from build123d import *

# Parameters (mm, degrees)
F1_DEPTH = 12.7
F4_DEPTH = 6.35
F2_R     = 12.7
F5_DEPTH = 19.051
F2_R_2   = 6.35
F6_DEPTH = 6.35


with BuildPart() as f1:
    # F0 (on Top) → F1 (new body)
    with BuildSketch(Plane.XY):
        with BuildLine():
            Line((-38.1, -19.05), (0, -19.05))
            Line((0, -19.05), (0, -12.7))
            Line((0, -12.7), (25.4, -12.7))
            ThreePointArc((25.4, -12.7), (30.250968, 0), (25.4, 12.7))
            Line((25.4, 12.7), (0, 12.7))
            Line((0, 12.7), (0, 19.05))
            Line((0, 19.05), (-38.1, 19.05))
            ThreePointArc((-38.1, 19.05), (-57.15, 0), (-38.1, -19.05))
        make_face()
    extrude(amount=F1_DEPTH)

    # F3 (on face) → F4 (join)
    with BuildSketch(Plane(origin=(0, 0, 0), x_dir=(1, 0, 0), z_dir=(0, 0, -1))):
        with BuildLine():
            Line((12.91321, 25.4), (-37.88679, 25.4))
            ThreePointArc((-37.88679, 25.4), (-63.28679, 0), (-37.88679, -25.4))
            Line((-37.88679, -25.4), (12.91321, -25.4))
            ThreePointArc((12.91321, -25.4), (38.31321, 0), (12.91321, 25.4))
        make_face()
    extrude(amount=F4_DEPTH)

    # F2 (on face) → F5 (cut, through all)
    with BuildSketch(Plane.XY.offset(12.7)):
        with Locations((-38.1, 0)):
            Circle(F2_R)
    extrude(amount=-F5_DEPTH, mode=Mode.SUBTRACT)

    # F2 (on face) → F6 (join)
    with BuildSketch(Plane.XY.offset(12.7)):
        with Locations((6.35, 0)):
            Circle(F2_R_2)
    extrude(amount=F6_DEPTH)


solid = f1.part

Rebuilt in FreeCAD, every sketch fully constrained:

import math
import FreeCAD as App
import Part
import Sketcher
from FreeCAD import Vector
Q = App.Units.Quantity

doc = App.newDocument("Part")
body = doc.addObject("PartDesign::Body", "Body")

# Sketch on XY plane
sketch1 = body.newObject("Sketcher::SketchObject", "Sketch")
sketch1.AttachmentSupport = (doc.getObject("XY_Plane"), [""])
sketch1.MapMode = "FlatFace"
sketch1.addGeometry(Part.LineSegment(Vector(-38, -19, 0), Vector(0, -19, 0)), False)
sketch1.addGeometry(Part.LineSegment(Vector(0, -19, 0), Vector(0, -13, 0)), False)
sketch1.addGeometry(Part.LineSegment(Vector(0, -13, 0), Vector(25, -13, 0)), False)
sketch1.addGeometry(Part.ArcOfCircle(Part.Circle(Vector(11, 0, 0), Vector(0, 0, 1), 19), math.radians(-42), math.radians(42)), False)
sketch1.addGeometry(Part.LineSegment(Vector(25, 13, 0), Vector(0, 13, 0)), False)
sketch1.addGeometry(Part.LineSegment(Vector(0, 13, 0), Vector(0, 19, 0)), False)
sketch1.addGeometry(Part.LineSegment(Vector(0, 19, 0), Vector(-38, 19, 0)), False)
sketch1.addGeometry(Part.ArcOfCircle(Part.Circle(Vector(-38, 0, 0), Vector(0, 0, 1), 19), math.radians(90), math.radians(270)), False)
sketch1.addConstraint(Sketcher.Constraint("Coincident", 0, 2, 1, 1))
sketch1.addConstraint(Sketcher.Constraint("Coincident", 1, 2, 2, 1))
sketch1.addConstraint(Sketcher.Constraint("Coincident", 2, 2, 3, 1))
sketch1.addConstraint(Sketcher.Constraint("Coincident", 3, 2, 4, 1))
sketch1.addConstraint(Sketcher.Constraint("Coincident", 4, 2, 5, 1))
sketch1.addConstraint(Sketcher.Constraint("Coincident", 5, 2, 6, 1))
sketch1.addConstraint(Sketcher.Constraint("Tangent", 6, 2, 7, 1))
sketch1.addConstraint(Sketcher.Constraint("Tangent", 7, 2, 0, 1))
sketch1.addConstraint(Sketcher.Constraint("Horizontal", 0))
sketch1.addConstraint(Sketcher.Constraint("Vertical", 1))
sketch1.addConstraint(Sketcher.Constraint("Horizontal", 2))
sketch1.addConstraint(Sketcher.Constraint("Horizontal", 4))
sketch1.addConstraint(Sketcher.Constraint("Vertical", 5))
sketch1.addConstraint(Sketcher.Constraint("Horizontal", 6))
sketch1.addConstraint(Sketcher.Constraint("Equal", 3, 7))
sketch1.addConstraint(Sketcher.Constraint("Symmetric", 1, 2, 4, 2, -1, 1))
sketch1.addConstraint(Sketcher.Constraint("Symmetric", 0, 2, 5, 2, -1))
sketch1.addConstraint(Sketcher.Constraint("PointOnObject", 3, 3, -1))
sketch1.addConstraint(Sketcher.Constraint("DistanceX", 2, 1, 2, 2, Q("1 in")))
sketch1.addConstraint(Sketcher.Constraint("Radius", 3, Q("0.75 in")))
sketch1.addConstraint(Sketcher.Constraint("DistanceX", 0, 1, 0, 2, Q("1.5 in")))
sketch1.addConstraint(Sketcher.Constraint("DistanceY", 2, 2, 3, 2, Q("1 in")))
pad1 = body.newObject("PartDesign::Pad", "Pad")
pad1.Profile = sketch1
pad1.Length = Q("0.5 in")

# Sketch on XY plane
sketch2 = body.newObject("Sketcher::SketchObject", "Sketch001")
sketch2.AttachmentSupport = (doc.getObject("XY_Plane"), [""])
sketch2.MapMode = "FlatFace"
sketch2.addGeometry(Part.LineSegment(Vector(13, -25, 0), Vector(-38, -25, 0)), False)
sketch2.addGeometry(Part.ArcOfCircle(Part.Circle(Vector(-38, 0, 0), Vector(0, 0, 1), 25), math.radians(90), math.radians(270)), False)
sketch2.addGeometry(Part.LineSegment(Vector(-38, 25, 0), Vector(13, 25, 0)), False)
sketch2.addGeometry(Part.ArcOfCircle(Part.Circle(Vector(13, 0, 0), Vector(0, 0, 1), 25), math.radians(-90), math.radians(90)), False)
sketch2.addConstraint(Sketcher.Constraint("Tangent", 0, 2, 1, 2))
sketch2.addConstraint(Sketcher.Constraint("Tangent", 1, 1, 2, 1))
sketch2.addConstraint(Sketcher.Constraint("Tangent", 2, 2, 3, 2))
sketch2.addConstraint(Sketcher.Constraint("Tangent", 3, 1, 0, 1))
sketch2.addConstraint(Sketcher.Constraint("Horizontal", 0))
sketch2.addConstraint(Sketcher.Constraint("Horizontal", 2))
sketch2.addConstraint(Sketcher.Constraint("PointOnObject", 1, 3, -1))
sketch2.addConstraint(Sketcher.Constraint("Radius", 1, Q("1 in")))
sketch2.addConstraint(Sketcher.Constraint("DistanceX", 0, 2, 0, 1, Q("2 in")))
sketch2.addConstraint(Sketcher.Constraint("DistanceX", 1, 3, -1, 1, Q("37.88679 mm")))
pad2 = body.newObject("PartDesign::Pad", "Pad001")
pad2.Profile = sketch2
pad2.Length = Q("0.25 in")
pad2.Reversed = True

# Sketch on XY plane
sketch3 = body.newObject("Sketcher::SketchObject", "Sketch002")
sketch3.AttachmentSupport = (doc.getObject("XY_Plane"), [""])
sketch3.MapMode = "FlatFace"
sketch3.AttachmentOffset = App.Placement(Vector(0, 0, 0.5 * 25.4), App.Rotation())
sketch3.addGeometry(Part.Circle(Vector(-38, 0, 0), Vector(0, 0, 1), 13), False)
sketch3.addConstraint(Sketcher.Constraint("PointOnObject", 0, 3, -1))
sketch3.addConstraint(Sketcher.Constraint("Diameter", 0, Q("1 in")))
sketch3.addConstraint(Sketcher.Constraint("DistanceX", 0, 3, -1, 1, Q("1.5 in")))
pocket1 = body.newObject("PartDesign::Pocket", "Pocket")
pocket1.Profile = sketch3
pocket1.Type = "ThroughAll"

# Sketch on XY plane
sketch4 = body.newObject("Sketcher::SketchObject", "Sketch003")
sketch4.AttachmentSupport = (doc.getObject("XY_Plane"), [""])
sketch4.MapMode = "FlatFace"
sketch4.AttachmentOffset = App.Placement(Vector(0, 0, 0.5 * 25.4), App.Rotation())
sketch4.addGeometry(Part.Circle(Vector(6, 0, 0), Vector(0, 0, 1), 6), False)
sketch4.addConstraint(Sketcher.Constraint("PointOnObject", 0, 3, -1))
sketch4.addConstraint(Sketcher.Constraint("Diameter", 0, Q("0.5 in")))
sketch4.addConstraint(Sketcher.Constraint("DistanceX", -1, 1, 0, 3, Q("0.25 in")))
pad3 = body.newObject("PartDesign::Pad", "Pad002")
pad3.Profile = sketch4
pad3.Length = Q("0.25 in")

doc.recompute()
